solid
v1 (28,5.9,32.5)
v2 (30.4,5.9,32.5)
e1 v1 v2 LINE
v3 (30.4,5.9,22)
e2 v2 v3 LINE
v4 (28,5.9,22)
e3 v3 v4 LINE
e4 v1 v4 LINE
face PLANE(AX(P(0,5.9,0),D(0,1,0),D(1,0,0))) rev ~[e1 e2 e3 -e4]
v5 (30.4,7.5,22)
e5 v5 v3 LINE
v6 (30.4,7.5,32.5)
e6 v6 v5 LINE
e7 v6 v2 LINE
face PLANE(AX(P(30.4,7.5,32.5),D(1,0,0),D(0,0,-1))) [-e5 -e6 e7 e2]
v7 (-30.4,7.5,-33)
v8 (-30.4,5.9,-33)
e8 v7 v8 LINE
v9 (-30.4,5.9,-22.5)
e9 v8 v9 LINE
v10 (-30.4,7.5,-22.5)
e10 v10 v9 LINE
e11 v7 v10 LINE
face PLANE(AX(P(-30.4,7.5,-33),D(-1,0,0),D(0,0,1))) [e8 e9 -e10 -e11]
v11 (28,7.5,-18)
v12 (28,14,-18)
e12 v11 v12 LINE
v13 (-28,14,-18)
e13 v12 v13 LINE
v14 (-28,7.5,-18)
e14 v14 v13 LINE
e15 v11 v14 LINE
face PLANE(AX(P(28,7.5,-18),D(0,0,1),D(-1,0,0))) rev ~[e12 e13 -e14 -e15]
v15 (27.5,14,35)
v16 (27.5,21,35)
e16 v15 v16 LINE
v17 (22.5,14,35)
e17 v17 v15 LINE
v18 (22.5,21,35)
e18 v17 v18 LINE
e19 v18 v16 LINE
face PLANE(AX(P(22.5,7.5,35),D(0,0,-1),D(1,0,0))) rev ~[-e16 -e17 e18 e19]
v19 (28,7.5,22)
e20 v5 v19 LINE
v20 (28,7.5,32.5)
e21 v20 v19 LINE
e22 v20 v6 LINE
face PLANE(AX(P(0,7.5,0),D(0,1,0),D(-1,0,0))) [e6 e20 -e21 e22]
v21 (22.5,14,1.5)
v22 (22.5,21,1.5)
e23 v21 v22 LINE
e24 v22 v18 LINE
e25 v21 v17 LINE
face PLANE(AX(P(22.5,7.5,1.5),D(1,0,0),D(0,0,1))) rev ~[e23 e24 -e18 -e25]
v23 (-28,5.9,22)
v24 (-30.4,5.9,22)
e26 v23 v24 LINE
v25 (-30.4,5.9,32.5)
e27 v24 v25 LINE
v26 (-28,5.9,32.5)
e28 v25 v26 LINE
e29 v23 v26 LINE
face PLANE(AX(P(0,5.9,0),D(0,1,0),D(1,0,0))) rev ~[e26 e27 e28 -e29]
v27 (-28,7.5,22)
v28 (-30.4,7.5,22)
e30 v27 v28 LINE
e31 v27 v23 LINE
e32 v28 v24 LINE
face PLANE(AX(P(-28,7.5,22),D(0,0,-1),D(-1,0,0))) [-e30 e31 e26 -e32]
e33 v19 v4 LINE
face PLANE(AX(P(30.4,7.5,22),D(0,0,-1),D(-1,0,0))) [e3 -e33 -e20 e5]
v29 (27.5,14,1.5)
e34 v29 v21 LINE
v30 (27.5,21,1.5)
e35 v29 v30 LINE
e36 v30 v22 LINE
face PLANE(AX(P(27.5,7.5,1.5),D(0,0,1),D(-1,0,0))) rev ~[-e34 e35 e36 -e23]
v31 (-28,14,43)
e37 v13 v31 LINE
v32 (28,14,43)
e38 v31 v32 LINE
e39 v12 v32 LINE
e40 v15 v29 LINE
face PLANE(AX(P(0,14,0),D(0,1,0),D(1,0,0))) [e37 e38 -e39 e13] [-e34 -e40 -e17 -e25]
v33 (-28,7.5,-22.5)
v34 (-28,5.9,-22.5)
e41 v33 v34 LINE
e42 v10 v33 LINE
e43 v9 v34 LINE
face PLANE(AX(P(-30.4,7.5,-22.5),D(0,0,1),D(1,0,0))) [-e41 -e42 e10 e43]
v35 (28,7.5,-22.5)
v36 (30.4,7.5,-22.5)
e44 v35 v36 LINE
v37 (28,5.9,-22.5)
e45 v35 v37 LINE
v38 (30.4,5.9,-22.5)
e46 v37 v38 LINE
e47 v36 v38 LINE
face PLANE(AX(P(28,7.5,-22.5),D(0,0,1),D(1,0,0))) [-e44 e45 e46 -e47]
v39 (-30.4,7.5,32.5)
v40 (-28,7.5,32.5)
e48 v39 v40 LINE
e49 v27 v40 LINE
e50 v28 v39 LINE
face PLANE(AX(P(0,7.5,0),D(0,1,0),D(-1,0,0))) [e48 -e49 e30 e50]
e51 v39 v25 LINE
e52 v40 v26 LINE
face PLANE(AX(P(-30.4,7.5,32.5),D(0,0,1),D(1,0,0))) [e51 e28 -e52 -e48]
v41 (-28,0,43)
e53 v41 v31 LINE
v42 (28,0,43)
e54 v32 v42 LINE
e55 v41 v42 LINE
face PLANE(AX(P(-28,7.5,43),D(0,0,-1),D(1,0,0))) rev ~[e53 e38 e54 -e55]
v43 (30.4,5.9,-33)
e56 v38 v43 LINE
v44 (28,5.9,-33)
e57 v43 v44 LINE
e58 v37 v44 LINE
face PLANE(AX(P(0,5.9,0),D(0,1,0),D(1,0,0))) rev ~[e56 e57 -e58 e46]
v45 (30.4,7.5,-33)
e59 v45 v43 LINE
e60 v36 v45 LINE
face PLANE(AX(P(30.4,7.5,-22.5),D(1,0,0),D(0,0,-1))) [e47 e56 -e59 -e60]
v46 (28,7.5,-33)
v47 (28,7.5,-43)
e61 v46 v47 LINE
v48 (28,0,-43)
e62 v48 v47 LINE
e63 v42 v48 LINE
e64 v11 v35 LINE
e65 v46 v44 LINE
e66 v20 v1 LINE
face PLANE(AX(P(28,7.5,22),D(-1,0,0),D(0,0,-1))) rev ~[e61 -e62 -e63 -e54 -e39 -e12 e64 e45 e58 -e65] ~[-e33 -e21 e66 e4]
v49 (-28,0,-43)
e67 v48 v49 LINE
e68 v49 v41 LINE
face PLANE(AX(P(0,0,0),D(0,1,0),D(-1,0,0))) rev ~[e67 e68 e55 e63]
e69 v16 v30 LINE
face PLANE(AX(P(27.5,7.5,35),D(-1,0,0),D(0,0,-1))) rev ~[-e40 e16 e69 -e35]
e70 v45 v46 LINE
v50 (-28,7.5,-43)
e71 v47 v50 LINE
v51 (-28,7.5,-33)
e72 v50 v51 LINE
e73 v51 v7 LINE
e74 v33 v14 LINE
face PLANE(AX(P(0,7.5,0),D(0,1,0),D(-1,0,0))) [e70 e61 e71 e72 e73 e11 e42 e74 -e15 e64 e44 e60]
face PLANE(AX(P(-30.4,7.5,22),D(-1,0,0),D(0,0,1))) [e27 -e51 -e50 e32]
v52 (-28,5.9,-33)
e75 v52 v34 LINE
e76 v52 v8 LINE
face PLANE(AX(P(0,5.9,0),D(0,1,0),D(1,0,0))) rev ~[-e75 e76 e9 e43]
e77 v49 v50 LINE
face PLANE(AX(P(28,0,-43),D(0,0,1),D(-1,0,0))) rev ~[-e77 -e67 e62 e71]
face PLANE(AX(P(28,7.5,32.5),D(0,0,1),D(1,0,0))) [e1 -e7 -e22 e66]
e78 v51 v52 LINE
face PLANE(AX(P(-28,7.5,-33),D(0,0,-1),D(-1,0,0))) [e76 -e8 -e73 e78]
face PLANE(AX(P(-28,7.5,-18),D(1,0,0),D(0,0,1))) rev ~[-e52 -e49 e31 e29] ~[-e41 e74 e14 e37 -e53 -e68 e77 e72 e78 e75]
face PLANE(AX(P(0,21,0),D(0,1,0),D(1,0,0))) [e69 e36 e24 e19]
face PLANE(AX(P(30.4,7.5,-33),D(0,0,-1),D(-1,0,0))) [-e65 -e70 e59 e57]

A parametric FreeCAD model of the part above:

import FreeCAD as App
import Part
import Sketcher
from FreeCAD import Vector


def add_polygon(sketch, points):
    """Adds a closed chain of lines whose ends are joined by coincident constraints."""
    first, n = sketch.GeometryCount, len(points)
    for a, b in zip(points, points[1:] + points[:1]):
        sketch.addGeometry(Part.LineSegment(App.Vector(*a, 0), App.Vector(*b, 0)), False)
    for i in range(n):
        sketch.addConstraint(Sketcher.Constraint("Coincident", first + i, 2, first + (i + 1) % n, 1))

doc = App.newDocument("Part")
body = doc.addObject("PartDesign::Body", "Body")

# Sketch on XZ plane
sketch1 = doc.addObject("Sketcher::SketchObject", "Sketch")
body.addObject(sketch1)
sketch1.AttachmentSupport = (doc.XZ_Plane, [""])
sketch1.MapMode = "FlatFace"
add_polygon(sketch1, [(-28, -43), (-28, 43), (28, 43), (28, -43)])  # lines 0-3
sketch1.addConstraint([
    Sketcher.Constraint("Vertical", 0),
    Sketcher.Constraint("Horizontal", 1),
    Sketcher.Constraint("Vertical", 2),
    Sketcher.Constraint("Horizontal", 3),
    Sketcher.Constraint("Symmetric", 0, 2, 2, 2, -1, 1),
    Sketcher.Constraint("DistanceX", 1, 1, 1, 2, 56.0),
    Sketcher.Constraint("DistanceY", 0, 1, 0, 2, 86.0),
])
pad1 = doc.addObject("PartDesign::Pad", "Pad")
body.addObject(pad1)
pad1.Profile = sketch1
pad1.Length = 7.5
pad1.Reversed = True

# Sketch on XZ plane
sketch2 = doc.addObject("Sketcher::SketchObject", "Sketch001")
body.addObject(sketch2)
sketch2.AttachmentSupport = (doc.XZ_Plane, [""])
sketch2.MapMode = "FlatFace"
sketch2.AttachmentOffset = App.Placement(Vector(0, 0, -7.5), App.Rotation())
add_polygon(sketch2, [(22, 2), (22, 35), (28, 35), (28, 2)])  # lines 0-3
sketch2.addConstraint([
    Sketcher.Constraint("Vertical", 0),
    Sketcher.Constraint("Horizontal", 1),
    Sketcher.Constraint("Vertical", 2),
    Sketcher.Constraint("Horizontal", 3),
    Sketcher.Constraint("DistanceX", 1, 1, 1, 2, 5.0),
    Sketcher.Constraint("DistanceY", 0, 1, 0, 2, 33.5),
    Sketcher.Constraint("DistanceY", -1, 1, 0, 2, 35.0),
    Sketcher.Constraint("DistanceX", -1, 1, 0, 2, 22.5),
])
pad2 = doc.addObject("PartDesign::Pad", "Pad001")
body.addObject(pad2)
pad2.Profile = sketch2
pad2.Length = 13.5
pad2.Reversed = True

# Sketch on XZ plane
sketch3 = doc.addObject("Sketcher::SketchObject", "Sketch002")
body.addObject(sketch3)
sketch3.AttachmentSupport = (doc.XZ_Plane, [""])
sketch3.MapMode = "FlatFace"
sketch3.AttachmentOffset = App.Placement(Vector(0, 0, -7.5), App.Rotation())
add_polygon(sketch3, [(-28, -22.5), (-28, -33), (-30.4, -33), (-30.4, -22.5)])  # lines 0-3
add_polygon(sketch3, [(30.4, -33), (28, -33), (28, -22.5), (30.4, -22.5)])  # lines 4-7
add_polygon(sketch3, [(-28, 32.5), (-28, 22), (-30.4, 22), (-30.4, 32.5)])  # lines 8-11
add_polygon(sketch3, [(30.4, 22), (28, 22), (28, 32.5), (30.4, 32.5)])  # lines 12-15
sketch3.addConstraint([
    Sketcher.Constraint("Vertical", 0),
    Sketcher.Constraint("Horizontal", 1),
    Sketcher.Constraint("Vertical", 2),
    Sketcher.Constraint("Horizontal", 3),
    Sketcher.Constraint("Horizontal", 4),
    Sketcher.Constraint("Vertical", 5),
    Sketcher.Constraint("Horizontal", 6),
    Sketcher.Constraint("Vertical", 7),
    Sketcher.Constraint("Vertical", 8),
    Sketcher.Constraint("Horizontal", 9),
    Sketcher.Constraint("Vertical", 10),
    Sketcher.Constraint("Horizontal", 11),
    Sketcher.Constraint("Horizontal", 12),
    Sketcher.Constraint("Vertical", 13),
    Sketcher.Constraint("Horizontal", 14),
    Sketcher.Constraint("Vertical", 15),
    Sketcher.Constraint("Symmetric", 0, 2, 4, 2, -2),
    Sketcher.Constraint("Symmetric", 2, 2, 6, 2, -2),
    Sketcher.Constraint("Symmetric", 8, 2, 12, 2, -2),
    Sketcher.Constraint("Symmetric", 10, 2, 14, 2, -2),
    Sketcher.Constraint("Vertical", 3, 2, 8, 2),
    Sketcher.Constraint("Vertical", 2, 2, 9, 2),
    Sketcher.Constraint("Equal", 7, 8),
    Sketcher.Constraint("DistanceX", 1, 2, 1, 1, 2.4),
    Sketcher.Constraint("DistanceY", 0, 2, 0, 1, 10.5),
    Sketcher.Constraint("DistanceX", 0, 2, -1, 1, 28.0),
    Sketcher.Constraint("DistanceY", 0, 2, -1, 1, 33.0),
    Sketcher.Constraint("DistanceY", -1, 1, 8, 2, 22.0),
])
pad3 = doc.addObject("PartDesign::Pad", "Pad002")
body.addObject(pad3)
pad3.Profile = sketch3
pad3.Length = 1.6

# Sketch on XZ plane
sketch4 = doc.addObject("Sketcher::SketchObject", "Sketch003")
body.addObject(sketch4)
sketch4.AttachmentSupport = (doc.XZ_Plane, [""])
sketch4.MapMode = "FlatFace"
sketch4.AttachmentOffset = App.Placement(Vector(0, 0, -7.5), App.Rotation())
add_polygon(sketch4, [(28, -18), (-28, -18), (-28, 43), (28, 43)])  # lines 0-3
sketch4.addConstraint([
    Sketcher.Constraint("Horizontal", 0),
    Sketcher.Constraint("Vertical", 1),
    Sketcher.Constraint("Horizontal", 2),
    Sketcher.Constraint("Vertical", 3),
    Sketcher.Constraint("DistanceX", 0, 2, 0, 1, 56.0),
    Sketcher.Constraint("DistanceY", 1, 1, 1, 2, 61.0),
    Sketcher.Constraint("DistanceX", 0, 2, -1, 1, 28.0),
    Sketcher.Constraint("DistanceY", 0, 2, -1, 1, 18.0),
])
pad4 = doc.addObject("PartDesign::Pad", "Pad003")
body.addObject(pad4)
pad4.Profile = sketch4
pad4.Length = 6.5
pad4.Reversed = True

doc.recompute()
